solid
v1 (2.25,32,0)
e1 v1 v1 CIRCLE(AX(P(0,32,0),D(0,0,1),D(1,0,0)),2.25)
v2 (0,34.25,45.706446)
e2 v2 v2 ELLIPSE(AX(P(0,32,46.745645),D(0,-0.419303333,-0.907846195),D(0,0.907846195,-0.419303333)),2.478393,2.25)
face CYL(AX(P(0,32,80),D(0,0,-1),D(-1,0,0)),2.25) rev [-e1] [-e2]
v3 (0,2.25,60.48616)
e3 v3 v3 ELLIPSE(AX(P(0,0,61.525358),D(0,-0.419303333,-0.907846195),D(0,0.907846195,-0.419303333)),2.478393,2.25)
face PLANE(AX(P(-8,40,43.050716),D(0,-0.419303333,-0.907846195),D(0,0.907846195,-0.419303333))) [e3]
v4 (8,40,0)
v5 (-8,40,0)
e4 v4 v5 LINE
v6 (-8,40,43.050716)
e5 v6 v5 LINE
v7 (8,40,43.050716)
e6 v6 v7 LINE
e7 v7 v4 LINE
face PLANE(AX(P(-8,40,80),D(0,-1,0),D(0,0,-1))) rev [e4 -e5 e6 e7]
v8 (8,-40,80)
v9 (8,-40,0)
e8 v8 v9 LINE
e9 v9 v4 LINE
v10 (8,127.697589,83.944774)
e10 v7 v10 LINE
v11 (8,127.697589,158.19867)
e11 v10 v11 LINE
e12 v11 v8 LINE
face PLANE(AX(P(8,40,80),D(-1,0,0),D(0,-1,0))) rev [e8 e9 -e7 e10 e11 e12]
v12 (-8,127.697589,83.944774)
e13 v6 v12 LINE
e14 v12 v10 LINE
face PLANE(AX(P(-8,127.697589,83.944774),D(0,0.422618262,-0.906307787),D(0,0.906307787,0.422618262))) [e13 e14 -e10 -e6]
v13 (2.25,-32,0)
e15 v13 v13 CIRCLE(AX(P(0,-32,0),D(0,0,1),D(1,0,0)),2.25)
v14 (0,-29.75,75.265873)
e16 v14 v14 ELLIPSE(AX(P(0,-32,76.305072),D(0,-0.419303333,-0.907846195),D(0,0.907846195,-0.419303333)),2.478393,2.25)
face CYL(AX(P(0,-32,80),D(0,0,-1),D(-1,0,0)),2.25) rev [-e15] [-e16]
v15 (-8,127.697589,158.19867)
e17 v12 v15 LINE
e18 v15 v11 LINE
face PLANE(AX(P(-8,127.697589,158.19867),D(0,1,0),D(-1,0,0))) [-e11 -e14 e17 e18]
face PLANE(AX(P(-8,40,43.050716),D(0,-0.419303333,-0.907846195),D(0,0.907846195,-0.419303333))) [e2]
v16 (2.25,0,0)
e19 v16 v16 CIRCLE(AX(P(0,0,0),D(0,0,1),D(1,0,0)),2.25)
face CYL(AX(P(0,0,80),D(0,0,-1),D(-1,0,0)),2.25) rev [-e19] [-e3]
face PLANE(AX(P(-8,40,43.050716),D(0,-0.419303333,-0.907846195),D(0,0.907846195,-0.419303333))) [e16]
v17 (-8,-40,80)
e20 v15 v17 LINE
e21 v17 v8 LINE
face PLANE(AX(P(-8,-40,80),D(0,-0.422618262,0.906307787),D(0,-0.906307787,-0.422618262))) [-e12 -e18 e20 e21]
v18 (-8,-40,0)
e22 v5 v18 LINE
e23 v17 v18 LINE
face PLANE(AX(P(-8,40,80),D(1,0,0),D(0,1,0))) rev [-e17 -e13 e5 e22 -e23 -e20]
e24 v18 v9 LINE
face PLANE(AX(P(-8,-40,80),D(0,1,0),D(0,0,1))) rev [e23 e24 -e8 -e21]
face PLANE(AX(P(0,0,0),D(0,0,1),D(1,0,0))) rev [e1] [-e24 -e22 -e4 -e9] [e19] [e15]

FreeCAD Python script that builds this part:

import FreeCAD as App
import Part
import Sketcher
from FreeCAD import Vector
Q = App.Units.Quantity


def add_polygon(sketch, points):
    """Adds a closed chain of lines whose ends are joined by coincident constraints."""
    first, n = sketch.GeometryCount, len(points)
    for a, b in zip(points, points[1:] + points[:1]):
        sketch.addGeometry(Part.LineSegment(App.Vector(*a, 0), App.Vector(*b, 0)), False)
    for i in range(n):
        sketch.addConstraint(Sketcher.Constraint("Coincident", first + i, 2, first + (i + 1) % n, 1))

doc = App.newDocument("Part")
body = doc.addObject("PartDesign::Body", "Body")

# Sketch on XY plane
sketch1 = body.newObject("Sketcher::SketchObject", "Sketch")
sketch1.AttachmentSupport = (doc.getObject("XY_Plane"), [""])
sketch1.MapMode = "FlatFace"
add_polygon(sketch1, [(-8, 40), (-8, -40), (8, -40), (8, 40)])  # lines 0-3
sketch1.addGeometry(Part.Circle(Vector(0, -32, 0), Vector(0, 0, 1), 2.25), False)  # 4
sketch1.addGeometry(Part.Circle(Vector(0, 0, 0), Vector(0, 0, 1), 2.25), False)  # 5
sketch1.addGeometry(Part.Circle(Vector(0, 32, 0), Vector(0, 0, 1), 2.25), False)  # 6
sketch1.addConstraint([
    Sketcher.Constraint("Vertical", 0),
    Sketcher.Constraint("Horizontal", 1),
    Sketcher.Constraint("Vertical", 2),
    Sketcher.Constraint("Horizontal", 3),
    Sketcher.Constraint("Coincident", 5, 3, -1, 1),
    Sketcher.Constraint("Equal", 4, 5),
    Sketcher.Constraint("Equal", 5, 6),
    Sketcher.Constraint("Symmetric", 4, 3, 6, 3, -1, 1),
    Sketcher.Constraint("Symmetric", 0, 2, 2, 2, -1, 1),
    Sketcher.Constraint("PointOnObject", 4, 3, -2),
    Sketcher.Constraint("Diameter", 4, 4.5),
    Sketcher.Constraint("DistanceX", 1, 1, 1, 2, 16.0),
    Sketcher.Constraint("DistanceY", 0, 2, 0, 1, 80.0),
    Sketcher.Constraint("DistanceY", 4, 3, -1, 1, 32.0),
])
pad1 = body.newObject("PartDesign::Pad", "Pad")
pad1.Profile = sketch1
pad1.Length = 80

# Sketch on YZ plane
sketch2 = body.newObject("Sketcher::SketchObject", "Sketch001")
sketch2.AttachmentSupport = (doc.getObject("YZ_Plane"), [""])
sketch2.MapMode = "FlatFace"
sketch2.AttachmentOffset = App.Placement(Vector(0, 0, 8), App.Rotation())
add_polygon(sketch2, [(3.689289, 100.37265), (-40, 80), (40, 43.050716), (127.697589, 83.944774), (127.697589, 158.19867)])  # lines 0-4
sketch2.addConstraint([
    Sketcher.Constraint("Vertical", 3),
    Sketcher.Constraint("Parallel", 0, 2),
    Sketcher.Constraint("Parallel", 2, 4),
    Sketcher.Constraint("Angle", 0, Q("-155 deg")),
    Sketcher.Constraint("DistanceX", 0, 2, -1, 1, 40.0),
    Sketcher.Constraint("DistanceY", -1, 1, 0, 2, 80.0),
    Sketcher.Constraint("DistanceX", -1, 1, 1, 2, 40.0),
    Sketcher.Constraint("DistanceX", 4, 2, 2, 2, 124.008301),
    Sketcher.Constraint("DistanceY", 3, 1, 3, 2, 74.253896),
    Sketcher.Constraint("DistanceX", -1, 1, 2, 2, 127.697589),
])
pad2 = body.newObject("PartDesign::Pad", "Pad001")
pad2.Profile = sketch2
pad2.Length = 16
pad2.Reversed = True

doc.recompute()
